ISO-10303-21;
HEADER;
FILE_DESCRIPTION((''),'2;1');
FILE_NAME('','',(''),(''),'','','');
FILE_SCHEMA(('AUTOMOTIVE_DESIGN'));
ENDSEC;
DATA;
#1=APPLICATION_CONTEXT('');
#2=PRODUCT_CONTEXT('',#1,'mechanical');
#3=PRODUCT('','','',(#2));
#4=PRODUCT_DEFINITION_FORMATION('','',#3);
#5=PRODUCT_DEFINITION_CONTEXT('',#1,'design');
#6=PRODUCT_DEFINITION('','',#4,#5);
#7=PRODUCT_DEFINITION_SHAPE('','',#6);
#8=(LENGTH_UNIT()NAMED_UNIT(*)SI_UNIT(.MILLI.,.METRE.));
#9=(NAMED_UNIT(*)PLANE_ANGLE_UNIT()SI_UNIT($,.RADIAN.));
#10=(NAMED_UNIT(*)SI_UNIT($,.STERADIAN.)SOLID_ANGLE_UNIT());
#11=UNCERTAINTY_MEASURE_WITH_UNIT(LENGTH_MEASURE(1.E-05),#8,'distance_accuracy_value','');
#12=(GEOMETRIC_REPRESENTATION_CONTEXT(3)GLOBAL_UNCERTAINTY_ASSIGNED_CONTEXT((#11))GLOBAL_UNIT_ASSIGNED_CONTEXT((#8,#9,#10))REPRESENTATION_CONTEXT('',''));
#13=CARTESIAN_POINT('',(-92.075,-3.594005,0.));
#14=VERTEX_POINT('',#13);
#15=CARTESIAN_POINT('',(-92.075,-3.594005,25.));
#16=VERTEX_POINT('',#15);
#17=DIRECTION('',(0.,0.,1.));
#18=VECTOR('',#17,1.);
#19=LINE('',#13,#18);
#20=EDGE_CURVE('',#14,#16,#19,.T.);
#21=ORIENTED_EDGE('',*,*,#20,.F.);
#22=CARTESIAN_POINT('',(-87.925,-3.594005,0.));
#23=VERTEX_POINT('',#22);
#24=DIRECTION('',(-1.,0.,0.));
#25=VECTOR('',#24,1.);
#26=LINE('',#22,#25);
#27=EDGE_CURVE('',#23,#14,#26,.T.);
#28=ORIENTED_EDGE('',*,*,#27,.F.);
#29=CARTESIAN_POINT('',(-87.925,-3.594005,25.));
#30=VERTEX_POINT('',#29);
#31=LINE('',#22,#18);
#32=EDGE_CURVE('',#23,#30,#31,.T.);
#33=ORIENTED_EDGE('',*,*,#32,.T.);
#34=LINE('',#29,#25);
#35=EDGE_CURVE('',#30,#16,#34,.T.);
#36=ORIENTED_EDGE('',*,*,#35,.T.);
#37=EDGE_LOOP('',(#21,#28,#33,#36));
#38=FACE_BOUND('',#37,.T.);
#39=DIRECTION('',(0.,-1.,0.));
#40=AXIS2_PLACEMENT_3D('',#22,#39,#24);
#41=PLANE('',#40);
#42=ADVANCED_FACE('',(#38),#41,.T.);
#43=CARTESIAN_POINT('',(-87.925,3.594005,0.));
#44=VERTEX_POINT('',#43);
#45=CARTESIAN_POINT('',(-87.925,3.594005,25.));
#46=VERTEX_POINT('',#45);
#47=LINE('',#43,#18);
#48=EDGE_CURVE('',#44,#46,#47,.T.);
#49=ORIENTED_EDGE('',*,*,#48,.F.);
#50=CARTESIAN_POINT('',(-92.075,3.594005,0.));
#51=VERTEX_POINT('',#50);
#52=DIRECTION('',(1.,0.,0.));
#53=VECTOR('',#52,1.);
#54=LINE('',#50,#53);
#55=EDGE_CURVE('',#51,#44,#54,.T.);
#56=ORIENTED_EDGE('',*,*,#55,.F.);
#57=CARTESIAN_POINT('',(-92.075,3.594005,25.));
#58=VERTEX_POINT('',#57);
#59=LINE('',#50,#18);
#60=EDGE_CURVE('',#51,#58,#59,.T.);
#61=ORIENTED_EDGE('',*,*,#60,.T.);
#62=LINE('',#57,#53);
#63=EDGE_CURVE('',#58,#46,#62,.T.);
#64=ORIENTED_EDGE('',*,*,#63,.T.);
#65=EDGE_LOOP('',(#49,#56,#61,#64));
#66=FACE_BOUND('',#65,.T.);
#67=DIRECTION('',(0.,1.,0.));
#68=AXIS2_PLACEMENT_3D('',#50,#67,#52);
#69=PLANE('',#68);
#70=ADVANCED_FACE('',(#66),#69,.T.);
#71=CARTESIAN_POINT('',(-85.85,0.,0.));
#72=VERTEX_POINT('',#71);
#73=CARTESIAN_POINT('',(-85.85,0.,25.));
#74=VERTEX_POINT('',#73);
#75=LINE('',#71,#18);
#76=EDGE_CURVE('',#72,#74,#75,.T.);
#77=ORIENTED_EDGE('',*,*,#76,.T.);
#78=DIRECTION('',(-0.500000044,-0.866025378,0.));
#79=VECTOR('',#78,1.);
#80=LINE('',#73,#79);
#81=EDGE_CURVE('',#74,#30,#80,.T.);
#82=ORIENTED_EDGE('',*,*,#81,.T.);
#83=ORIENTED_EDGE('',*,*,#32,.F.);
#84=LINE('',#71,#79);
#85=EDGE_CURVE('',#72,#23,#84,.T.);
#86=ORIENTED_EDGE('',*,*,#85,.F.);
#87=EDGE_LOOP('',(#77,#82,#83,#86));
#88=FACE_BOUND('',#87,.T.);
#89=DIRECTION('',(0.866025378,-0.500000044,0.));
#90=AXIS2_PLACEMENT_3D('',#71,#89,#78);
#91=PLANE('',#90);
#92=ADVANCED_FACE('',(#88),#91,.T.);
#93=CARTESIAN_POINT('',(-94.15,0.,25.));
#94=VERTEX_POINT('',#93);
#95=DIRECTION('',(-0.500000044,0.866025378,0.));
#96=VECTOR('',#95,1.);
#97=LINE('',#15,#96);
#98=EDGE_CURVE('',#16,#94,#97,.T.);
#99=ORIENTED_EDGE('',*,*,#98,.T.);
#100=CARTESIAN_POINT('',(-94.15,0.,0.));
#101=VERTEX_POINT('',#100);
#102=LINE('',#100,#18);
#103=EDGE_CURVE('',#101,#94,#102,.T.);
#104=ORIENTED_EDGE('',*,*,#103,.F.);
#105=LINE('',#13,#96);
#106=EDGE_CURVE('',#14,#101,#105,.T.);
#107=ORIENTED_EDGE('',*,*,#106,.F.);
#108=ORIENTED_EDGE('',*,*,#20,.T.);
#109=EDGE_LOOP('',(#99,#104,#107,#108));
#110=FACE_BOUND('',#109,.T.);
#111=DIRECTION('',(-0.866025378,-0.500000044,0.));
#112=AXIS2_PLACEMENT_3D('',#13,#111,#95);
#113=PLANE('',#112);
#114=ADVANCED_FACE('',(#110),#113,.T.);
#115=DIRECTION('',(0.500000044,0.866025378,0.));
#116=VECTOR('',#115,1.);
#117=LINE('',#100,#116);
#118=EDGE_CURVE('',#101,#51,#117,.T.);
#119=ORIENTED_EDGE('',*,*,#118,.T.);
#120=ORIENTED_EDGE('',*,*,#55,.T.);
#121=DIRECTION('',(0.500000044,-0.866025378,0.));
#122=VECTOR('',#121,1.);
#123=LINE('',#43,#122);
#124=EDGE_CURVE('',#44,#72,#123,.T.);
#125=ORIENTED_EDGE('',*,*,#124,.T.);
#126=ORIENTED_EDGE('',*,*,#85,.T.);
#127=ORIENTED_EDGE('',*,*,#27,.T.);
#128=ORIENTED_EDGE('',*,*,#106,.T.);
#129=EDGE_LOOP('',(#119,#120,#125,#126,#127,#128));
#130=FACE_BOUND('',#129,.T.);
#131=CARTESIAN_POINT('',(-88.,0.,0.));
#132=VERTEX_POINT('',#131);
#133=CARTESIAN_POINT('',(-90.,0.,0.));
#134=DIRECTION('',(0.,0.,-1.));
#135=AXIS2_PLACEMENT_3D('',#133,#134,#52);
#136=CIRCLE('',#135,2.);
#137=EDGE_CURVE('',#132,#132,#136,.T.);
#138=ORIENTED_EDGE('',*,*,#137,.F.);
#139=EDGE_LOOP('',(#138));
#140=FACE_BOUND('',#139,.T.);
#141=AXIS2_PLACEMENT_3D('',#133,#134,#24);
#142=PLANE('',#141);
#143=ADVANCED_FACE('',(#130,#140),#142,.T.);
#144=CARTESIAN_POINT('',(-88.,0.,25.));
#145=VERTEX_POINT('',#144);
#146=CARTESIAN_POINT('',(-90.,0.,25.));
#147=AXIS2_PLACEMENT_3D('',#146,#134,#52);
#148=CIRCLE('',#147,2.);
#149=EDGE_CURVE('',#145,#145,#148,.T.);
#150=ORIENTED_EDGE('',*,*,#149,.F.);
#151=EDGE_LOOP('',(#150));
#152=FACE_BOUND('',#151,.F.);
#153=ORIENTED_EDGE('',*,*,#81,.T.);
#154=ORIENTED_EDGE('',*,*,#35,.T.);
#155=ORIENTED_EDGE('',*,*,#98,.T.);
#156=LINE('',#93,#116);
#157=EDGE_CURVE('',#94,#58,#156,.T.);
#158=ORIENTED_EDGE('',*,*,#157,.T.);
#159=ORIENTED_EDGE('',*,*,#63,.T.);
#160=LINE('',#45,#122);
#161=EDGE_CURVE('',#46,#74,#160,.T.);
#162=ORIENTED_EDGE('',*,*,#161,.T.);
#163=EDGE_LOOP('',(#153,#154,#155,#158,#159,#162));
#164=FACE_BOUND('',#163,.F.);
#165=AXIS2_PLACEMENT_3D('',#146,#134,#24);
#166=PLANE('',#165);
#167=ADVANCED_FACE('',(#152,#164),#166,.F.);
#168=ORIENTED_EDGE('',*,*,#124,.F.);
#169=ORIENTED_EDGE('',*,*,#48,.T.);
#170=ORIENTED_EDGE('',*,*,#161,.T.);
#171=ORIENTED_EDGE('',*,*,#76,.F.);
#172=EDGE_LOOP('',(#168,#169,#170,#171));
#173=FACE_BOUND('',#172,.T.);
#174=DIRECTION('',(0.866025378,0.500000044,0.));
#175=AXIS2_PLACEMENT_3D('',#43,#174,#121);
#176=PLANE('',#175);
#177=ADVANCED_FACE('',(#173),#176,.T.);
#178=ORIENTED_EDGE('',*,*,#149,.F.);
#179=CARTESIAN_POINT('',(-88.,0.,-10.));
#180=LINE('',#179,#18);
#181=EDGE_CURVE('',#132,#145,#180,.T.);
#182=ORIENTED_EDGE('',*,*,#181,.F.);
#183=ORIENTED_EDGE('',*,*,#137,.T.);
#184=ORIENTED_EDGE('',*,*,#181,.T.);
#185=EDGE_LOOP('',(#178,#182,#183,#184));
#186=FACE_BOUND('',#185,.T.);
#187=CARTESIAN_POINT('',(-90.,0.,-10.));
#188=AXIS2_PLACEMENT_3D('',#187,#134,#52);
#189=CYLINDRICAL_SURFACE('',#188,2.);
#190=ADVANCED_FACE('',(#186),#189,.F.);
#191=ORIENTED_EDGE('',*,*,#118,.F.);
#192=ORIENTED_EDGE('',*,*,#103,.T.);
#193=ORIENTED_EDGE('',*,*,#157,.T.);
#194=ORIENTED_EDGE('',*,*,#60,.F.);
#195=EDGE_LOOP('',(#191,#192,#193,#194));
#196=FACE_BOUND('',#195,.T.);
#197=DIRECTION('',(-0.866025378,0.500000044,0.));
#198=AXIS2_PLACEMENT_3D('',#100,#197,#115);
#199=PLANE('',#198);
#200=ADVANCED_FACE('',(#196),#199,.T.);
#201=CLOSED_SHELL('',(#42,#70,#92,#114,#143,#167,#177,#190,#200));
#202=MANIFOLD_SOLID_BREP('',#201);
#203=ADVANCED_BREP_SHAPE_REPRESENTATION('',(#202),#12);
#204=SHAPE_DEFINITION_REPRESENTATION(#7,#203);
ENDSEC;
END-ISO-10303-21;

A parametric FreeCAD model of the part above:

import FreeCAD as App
import Part
import Sketcher

V = App.Vector
Q = App.Units.Quantity


def add_polygon(sketch, points):
    """Adds a closed chain of lines whose ends are joined by coincident constraints."""
    first, n = sketch.GeometryCount, len(points)
    for a, b in zip(points, points[1:] + points[:1]):
        sketch.addGeometry(Part.LineSegment(App.Vector(*a, 0), App.Vector(*b, 0)), False)
    for i in range(n):
        sketch.addConstraint(Sketcher.Constraint("Coincident", first + i, 2, first + (i + 1) % n, 1))

doc = App.newDocument("Part")
body = doc.addObject("PartDesign::Body", "Body")

sketch1 = body.newObject("Sketcher::SketchObject", "Sketch")
sketch1.AttachmentSupport = (doc.getObject("XY_Plane"), [""])
sketch1.MapMode = "FlatFace"
sketch1.AttachmentOffset = App.Placement(V(0, 0, -10), App.Rotation())
sketch1.addGeometry(Part.Circle(V(-90, 0, 0), V(0, 0, 1), 2), False)
sketch1.addConstraint([
    Sketcher.Constraint("PointOnObject", 0, 3, -1),
    Sketcher.Constraint("Diameter", 0, 4.0),
    Sketcher.Constraint("DistanceX", 0, 3, -1, 1, 90.0),
])
pad1 = body.newObject("PartDesign::Pad", "Pad")
pad1.Profile = sketch1
pad1.Length = 50
body2 = doc.addObject("PartDesign::Body", "Body001")

sketch2 = body2.newObject("Sketcher::SketchObject", "Sketch001")
sketch2.AttachmentSupport = (doc.getObject("XY_Plane001"), [""])
sketch2.MapMode = "FlatFace"
add_polygon(sketch2, [(-85.85, 0), (-87.925, 3.594005), (-92.075, 3.594005), (-94.15, 0), (-92.075, -3.594005), (-87.925, -3.594005)])
sketch2.addConstraint([
    Sketcher.Constraint("Horizontal", 1),
    Sketcher.Constraint("Horizontal", 4),
    Sketcher.Constraint("Symmetric", 1, 2, 3, 2, -1),
    Sketcher.Constraint("PointOnObject", 2, 2, -1),
    Sketcher.Constraint("PointOnObject", 5, 2, -1),
    Sketcher.Constraint("Parallel", 0, 3),
    Sketcher.Constraint("Parallel", 2, 5),
    Sketcher.Constraint("Angle", 0, Q("120.000003 deg")),
    Sketcher.Constraint("DistanceX", 1, 2, 1, 1, 4.15),
    Sketcher.Constraint("DistanceX", 2, 2, 5, 2, 8.3),
    Sketcher.Constraint("DistanceX", 2, 2, -1, 1, 94.15),
])
pad2 = body2.newObject("PartDesign::Pad", "Pad001")
pad2.Profile = sketch2
pad2.Length = 25
doc.recompute()

boolean = body2.newObject("PartDesign::Boolean", "Boolean")
boolean.Type = "Cut"
boolean.addObjects([body])

doc.recompute()
